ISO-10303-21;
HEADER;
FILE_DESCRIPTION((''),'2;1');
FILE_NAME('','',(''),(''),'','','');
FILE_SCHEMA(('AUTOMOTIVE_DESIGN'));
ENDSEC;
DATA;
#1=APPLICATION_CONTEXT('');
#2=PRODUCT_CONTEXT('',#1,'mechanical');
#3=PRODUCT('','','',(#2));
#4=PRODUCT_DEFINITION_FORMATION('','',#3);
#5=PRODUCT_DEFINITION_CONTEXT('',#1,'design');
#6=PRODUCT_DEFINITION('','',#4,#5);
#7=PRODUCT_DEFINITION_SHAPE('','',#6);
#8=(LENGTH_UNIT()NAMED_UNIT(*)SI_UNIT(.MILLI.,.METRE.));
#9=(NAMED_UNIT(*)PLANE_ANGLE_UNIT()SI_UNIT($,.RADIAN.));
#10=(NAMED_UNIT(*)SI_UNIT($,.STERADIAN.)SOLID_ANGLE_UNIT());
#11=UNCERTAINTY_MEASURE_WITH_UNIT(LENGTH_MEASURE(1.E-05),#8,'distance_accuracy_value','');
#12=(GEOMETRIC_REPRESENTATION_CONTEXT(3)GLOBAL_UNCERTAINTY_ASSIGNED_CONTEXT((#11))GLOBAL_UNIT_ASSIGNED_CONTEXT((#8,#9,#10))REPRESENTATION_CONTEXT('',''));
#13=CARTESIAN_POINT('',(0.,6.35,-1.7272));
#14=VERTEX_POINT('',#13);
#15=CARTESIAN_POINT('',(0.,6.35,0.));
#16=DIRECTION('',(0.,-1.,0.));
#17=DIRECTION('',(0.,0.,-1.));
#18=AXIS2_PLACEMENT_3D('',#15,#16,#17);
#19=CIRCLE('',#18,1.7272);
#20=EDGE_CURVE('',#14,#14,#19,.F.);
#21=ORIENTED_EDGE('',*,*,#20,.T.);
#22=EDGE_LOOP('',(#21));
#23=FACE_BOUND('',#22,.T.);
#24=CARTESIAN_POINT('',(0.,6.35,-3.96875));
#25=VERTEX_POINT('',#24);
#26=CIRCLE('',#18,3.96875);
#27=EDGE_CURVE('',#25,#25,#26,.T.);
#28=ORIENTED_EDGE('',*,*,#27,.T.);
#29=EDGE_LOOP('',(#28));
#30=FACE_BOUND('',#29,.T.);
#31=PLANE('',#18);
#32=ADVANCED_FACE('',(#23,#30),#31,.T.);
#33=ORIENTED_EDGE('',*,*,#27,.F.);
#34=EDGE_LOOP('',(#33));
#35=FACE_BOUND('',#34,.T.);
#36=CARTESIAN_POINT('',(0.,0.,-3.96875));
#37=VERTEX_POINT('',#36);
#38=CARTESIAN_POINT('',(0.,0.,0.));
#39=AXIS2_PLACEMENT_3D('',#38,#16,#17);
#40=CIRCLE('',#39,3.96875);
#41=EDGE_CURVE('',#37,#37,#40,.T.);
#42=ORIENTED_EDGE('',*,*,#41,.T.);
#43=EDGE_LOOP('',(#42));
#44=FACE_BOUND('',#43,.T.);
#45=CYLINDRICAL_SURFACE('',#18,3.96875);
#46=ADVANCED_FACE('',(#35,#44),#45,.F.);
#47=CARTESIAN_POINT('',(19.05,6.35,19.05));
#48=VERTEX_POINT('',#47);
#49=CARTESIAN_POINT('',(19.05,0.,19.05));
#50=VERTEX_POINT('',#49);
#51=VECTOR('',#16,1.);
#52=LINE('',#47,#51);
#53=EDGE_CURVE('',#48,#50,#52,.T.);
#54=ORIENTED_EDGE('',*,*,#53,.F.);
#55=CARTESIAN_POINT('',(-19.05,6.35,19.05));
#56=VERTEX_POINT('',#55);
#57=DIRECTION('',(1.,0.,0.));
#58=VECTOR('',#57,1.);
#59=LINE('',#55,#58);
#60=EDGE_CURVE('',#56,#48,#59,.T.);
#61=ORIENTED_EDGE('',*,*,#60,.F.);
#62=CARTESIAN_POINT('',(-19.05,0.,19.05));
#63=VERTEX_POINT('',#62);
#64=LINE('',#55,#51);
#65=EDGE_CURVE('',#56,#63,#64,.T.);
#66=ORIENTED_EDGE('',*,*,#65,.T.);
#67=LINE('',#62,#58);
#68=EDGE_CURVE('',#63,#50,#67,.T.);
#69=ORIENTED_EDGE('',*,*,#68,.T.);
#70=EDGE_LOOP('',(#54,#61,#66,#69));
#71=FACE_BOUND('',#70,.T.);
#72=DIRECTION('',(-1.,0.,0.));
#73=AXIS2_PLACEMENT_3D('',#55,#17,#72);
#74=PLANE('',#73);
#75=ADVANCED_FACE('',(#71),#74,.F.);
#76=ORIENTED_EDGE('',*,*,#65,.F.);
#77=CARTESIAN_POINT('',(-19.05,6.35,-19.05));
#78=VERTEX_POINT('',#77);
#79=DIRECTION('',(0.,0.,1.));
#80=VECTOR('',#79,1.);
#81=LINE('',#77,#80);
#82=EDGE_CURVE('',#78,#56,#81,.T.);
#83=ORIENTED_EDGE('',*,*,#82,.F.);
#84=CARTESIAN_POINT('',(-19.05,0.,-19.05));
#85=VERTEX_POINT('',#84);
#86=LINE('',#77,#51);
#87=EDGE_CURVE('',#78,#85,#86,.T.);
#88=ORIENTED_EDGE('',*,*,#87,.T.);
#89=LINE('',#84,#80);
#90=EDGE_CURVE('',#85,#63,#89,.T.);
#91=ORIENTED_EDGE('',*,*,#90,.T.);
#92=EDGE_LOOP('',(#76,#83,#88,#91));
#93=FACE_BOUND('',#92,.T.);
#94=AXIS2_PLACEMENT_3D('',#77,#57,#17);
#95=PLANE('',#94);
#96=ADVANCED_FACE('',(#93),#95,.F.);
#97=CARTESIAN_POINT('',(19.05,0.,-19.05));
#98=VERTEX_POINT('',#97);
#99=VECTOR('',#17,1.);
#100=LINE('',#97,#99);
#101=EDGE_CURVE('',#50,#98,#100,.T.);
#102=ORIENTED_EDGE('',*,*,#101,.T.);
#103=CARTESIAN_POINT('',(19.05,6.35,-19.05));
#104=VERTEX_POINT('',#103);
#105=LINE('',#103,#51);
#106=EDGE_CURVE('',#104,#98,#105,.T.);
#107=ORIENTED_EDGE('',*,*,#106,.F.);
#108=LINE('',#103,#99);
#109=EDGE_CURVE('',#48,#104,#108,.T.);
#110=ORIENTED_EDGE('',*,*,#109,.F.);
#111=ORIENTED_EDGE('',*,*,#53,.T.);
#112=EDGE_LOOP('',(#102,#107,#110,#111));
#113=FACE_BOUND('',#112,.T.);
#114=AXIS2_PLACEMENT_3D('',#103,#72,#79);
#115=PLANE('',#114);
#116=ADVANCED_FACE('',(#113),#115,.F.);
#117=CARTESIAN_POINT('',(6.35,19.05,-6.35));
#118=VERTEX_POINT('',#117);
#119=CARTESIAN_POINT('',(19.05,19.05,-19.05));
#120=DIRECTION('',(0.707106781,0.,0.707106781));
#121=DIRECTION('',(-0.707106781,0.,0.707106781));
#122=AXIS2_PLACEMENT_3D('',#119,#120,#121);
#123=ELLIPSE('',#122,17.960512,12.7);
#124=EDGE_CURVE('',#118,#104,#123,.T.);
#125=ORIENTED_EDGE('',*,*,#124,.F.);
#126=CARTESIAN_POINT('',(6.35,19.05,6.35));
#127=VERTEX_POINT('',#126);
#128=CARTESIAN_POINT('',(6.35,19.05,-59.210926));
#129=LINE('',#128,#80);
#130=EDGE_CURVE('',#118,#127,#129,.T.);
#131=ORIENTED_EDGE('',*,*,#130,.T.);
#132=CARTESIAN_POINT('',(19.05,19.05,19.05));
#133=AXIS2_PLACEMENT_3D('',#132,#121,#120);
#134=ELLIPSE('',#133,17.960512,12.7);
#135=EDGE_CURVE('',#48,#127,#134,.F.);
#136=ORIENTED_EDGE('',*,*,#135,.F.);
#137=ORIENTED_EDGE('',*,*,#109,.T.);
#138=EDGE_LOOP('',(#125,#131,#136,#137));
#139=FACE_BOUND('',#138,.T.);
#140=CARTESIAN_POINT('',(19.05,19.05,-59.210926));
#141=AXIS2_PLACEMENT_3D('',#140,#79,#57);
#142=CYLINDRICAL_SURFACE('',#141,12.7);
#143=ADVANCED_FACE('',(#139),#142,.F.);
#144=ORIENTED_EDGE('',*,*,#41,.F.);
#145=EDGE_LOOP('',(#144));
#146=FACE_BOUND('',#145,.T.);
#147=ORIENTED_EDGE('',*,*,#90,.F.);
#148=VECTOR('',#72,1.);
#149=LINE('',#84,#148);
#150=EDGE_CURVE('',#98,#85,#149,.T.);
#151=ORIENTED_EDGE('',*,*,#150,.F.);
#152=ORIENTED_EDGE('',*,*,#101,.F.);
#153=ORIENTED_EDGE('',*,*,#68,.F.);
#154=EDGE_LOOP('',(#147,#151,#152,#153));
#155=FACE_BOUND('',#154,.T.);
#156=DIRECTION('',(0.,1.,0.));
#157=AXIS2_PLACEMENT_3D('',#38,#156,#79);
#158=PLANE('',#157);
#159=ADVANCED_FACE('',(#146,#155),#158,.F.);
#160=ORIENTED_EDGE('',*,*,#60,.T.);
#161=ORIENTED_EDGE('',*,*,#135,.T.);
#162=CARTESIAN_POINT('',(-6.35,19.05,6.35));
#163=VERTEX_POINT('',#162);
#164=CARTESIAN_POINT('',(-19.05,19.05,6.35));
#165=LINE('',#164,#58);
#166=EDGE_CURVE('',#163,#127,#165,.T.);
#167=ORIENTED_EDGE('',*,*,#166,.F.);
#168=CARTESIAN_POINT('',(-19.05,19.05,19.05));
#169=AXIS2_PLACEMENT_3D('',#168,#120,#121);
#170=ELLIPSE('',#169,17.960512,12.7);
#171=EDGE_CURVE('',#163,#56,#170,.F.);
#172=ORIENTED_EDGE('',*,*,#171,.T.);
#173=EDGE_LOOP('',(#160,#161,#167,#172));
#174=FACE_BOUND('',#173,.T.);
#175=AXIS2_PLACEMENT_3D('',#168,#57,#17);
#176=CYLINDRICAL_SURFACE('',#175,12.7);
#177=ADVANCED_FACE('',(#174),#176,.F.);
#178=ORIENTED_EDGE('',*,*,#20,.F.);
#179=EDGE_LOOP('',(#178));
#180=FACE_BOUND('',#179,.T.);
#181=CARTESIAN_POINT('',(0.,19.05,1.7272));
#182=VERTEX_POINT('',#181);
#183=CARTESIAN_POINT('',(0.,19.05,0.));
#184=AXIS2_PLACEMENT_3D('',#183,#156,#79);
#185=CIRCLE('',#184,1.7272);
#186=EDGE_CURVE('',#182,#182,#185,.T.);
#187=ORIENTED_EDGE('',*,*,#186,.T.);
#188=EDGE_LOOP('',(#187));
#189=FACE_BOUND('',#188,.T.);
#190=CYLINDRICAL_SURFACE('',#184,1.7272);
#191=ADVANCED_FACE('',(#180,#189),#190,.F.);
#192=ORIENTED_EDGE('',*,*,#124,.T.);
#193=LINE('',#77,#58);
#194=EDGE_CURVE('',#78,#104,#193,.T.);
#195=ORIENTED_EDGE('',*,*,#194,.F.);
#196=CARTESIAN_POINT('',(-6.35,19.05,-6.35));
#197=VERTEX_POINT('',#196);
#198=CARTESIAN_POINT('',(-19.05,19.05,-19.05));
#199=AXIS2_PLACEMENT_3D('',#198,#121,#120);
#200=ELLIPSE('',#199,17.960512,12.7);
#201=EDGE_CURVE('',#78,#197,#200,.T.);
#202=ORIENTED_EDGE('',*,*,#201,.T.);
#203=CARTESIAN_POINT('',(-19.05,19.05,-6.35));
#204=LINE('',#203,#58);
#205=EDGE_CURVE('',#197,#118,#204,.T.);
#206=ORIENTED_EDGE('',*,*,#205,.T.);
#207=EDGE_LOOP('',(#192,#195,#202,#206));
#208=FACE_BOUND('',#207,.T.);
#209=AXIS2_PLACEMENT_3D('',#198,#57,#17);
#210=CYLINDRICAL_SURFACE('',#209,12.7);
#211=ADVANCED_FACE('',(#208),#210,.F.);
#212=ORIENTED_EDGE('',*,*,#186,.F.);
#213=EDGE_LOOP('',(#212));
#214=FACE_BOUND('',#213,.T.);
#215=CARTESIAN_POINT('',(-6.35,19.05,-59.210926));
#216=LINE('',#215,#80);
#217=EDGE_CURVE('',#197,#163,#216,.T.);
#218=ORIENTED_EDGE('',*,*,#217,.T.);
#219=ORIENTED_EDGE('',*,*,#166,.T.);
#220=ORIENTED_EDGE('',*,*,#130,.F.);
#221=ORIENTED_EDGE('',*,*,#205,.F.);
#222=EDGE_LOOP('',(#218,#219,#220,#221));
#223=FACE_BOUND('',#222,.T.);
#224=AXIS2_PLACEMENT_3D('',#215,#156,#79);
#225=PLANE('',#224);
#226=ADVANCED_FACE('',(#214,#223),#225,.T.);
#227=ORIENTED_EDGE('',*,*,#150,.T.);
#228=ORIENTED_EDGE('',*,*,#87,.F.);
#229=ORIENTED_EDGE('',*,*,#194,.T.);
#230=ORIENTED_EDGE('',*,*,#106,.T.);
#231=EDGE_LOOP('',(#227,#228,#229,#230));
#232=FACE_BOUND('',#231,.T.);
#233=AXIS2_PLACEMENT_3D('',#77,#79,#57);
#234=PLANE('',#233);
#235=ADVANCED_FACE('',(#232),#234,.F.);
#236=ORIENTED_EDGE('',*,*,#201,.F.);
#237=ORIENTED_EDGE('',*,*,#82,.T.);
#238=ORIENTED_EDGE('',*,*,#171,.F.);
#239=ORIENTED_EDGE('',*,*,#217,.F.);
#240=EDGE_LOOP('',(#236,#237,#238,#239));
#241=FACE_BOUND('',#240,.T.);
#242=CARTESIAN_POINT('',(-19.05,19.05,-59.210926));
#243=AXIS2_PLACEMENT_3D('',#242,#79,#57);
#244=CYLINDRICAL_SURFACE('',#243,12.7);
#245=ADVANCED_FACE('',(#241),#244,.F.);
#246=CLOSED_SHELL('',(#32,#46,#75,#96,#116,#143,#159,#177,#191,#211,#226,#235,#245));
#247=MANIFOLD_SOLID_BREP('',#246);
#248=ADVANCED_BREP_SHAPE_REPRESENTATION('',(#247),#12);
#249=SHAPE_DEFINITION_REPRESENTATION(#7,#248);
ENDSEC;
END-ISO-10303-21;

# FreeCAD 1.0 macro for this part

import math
import FreeCAD as App
import Part
import Sketcher
from FreeCAD import Vector
Q = App.Units.Quantity


def add_polygon(sketch, points):
    """Adds a closed chain of lines whose ends are joined by coincident constraints."""
    first, n = sketch.GeometryCount, len(points)
    for a, b in zip(points, points[1:] + points[:1]):
        sketch.addGeometry(Part.LineSegment(App.Vector(*a, 0), App.Vector(*b, 0)), False)
    for i in range(n):
        sketch.addConstraint(Sketcher.Constraint("Coincident", first + i, 2, first + (i + 1) % n, 1))

doc = App.newDocument("Part")
body = doc.addObject("PartDesign::Body", "Body")

# Sketch on XZ plane
sketch1 = doc.addObject("Sketcher::SketchObject", "Sketch")
body.addObject(sketch1)
sketch1.AttachmentSupport = (doc.XZ_Plane, [""])
sketch1.MapMode = "FlatFace"
add_polygon(sketch1, [(-19, -19), (-19, 19), (19, 19), (19, -19)])  # lines 0-3
sketch1.addConstraint([
    Sketcher.Constraint("Vertical", 0),
    Sketcher.Constraint("Horizontal", 1),
    Sketcher.Constraint("Vertical", 2),
    Sketcher.Constraint("Horizontal", 3),
    Sketcher.Constraint("Symmetric", 0, 2, 2, 2, -1, 1),
    Sketcher.Constraint("Equal", 3, 0),
    Sketcher.Constraint("DistanceX", 1, 1, 1, 2, Q("1.5 in")),
])
pad1 = doc.addObject("PartDesign::Pad", "Pad")
body.addObject(pad1)
pad1.Profile = sketch1
pad1.Length = Q("0.25 in")
pad1.Reversed = True

# Sketch on XY plane
sketch2 = doc.addObject("Sketcher::SketchObject", "Sketch001")
body.addObject(sketch2)
sketch2.AttachmentSupport = (doc.XY_Plane, [""])
sketch2.MapMode = "FlatFace"
sketch2.AttachmentOffset = App.Placement(Vector(0, 0, 0.75 * 25.4), App.Rotation())
sketch2.addGeometry([
    Part.LineSegment(Vector(-19, 6, 0), Vector(19, 6, 0)),
    Part.ArcOfCircle(Part.Circle(Vector(19, 19, 0), Vector(0, 0, 1), 13), math.radians(180), math.radians(270)),
    Part.LineSegment(Vector(6, 19, 0), Vector(-6, 19, 0)),
    Part.ArcOfCircle(Part.Circle(Vector(-19, 19, 0), Vector(0, 0, 1), 13), math.radians(-90), math.radians(0)),
], False)
sketch2.addConstraint([
    Sketcher.Constraint("Tangent", 0, 2, 1, 2),
    Sketcher.Constraint("Coincident", 1, 1, 2, 1),
    Sketcher.Constraint("Coincident", 2, 2, 3, 2),
    Sketcher.Constraint("Tangent", 3, 1, 0, 1),
    Sketcher.Constraint("Horizontal", 0),
    Sketcher.Constraint("Horizontal", 2),
    Sketcher.Constraint("Equal", 1, 3),
    Sketcher.Constraint("Horizontal", 3, 3, 1, 1),
    Sketcher.Constraint("Radius", 1, Q("0.5 in")),
    Sketcher.Constraint("DistanceX", 0, 1, 0, 2, Q("1.5 in")),
    Sketcher.Constraint("DistanceX", -1, 1, 1, 3, Q("0.75 in")),
    Sketcher.Constraint("DistanceY", -1, 1, 1, 3, Q("0.75 in")),
])
pad2 = doc.addObject("PartDesign::Pad", "Pad001")
body.addObject(pad2)
pad2.Profile = sketch2
pad2.Length = Q("1.5 in")
pad2.Reversed = True

# Sketch on YZ plane
sketch3 = doc.addObject("Sketcher::SketchObject", "Sketch002")
body.addObject(sketch3)
sketch3.AttachmentSupport = (doc.YZ_Plane, [""])
sketch3.MapMode = "FlatFace"
sketch3.AttachmentOffset = App.Placement(Vector(0, 0, 0.75 * 25.4), App.Rotation())
sketch3.addGeometry([
    Part.LineSegment(Vector(19, 19, 0), Vector(6, 19, 0)),  # 0
    Part.ArcOfCircle(Part.Circle(Vector(19, 19, 0), Vector(0, 0, 1), 13), math.radians(-180), math.radians(-90)),  # 1
    Part.LineSegment(Vector(19, 6, 0), Vector(19, 19, 0)),  # 2
    Part.LineSegment(Vector(6, -19, 0), Vector(19, -19, 0)),  # 3
    Part.LineSegment(Vector(19, -19, 0), Vector(19, -6, 0)),  # 4
    Part.ArcOfCircle(Part.Circle(Vector(19, -19, 0), Vector(0, 0, 1), 13), math.radians(90), math.radians(180)),  # 5
], False)
sketch3.addConstraint([
    Sketcher.Constraint("Coincident", 0, 2, 1, 1),
    Sketcher.Constraint("Coincident", 1, 2, 2, 1),
    Sketcher.Constraint("Coincident", 2, 2, 0, 1),
    Sketcher.Constraint("Coincident", 3, 2, 4, 1),
    Sketcher.Constraint("Coincident", 4, 2, 5, 1),
    Sketcher.Constraint("Coincident", 5, 2, 3, 1),
    Sketcher.Constraint("Horizontal", 0),
    Sketcher.Constraint("Vertical", 2),
    Sketcher.Constraint("Horizontal", 3),
    Sketcher.Constraint("Vertical", 4),
    Sketcher.Constraint("Coincident", 2, 2, 1, 3),
    Sketcher.Constraint("Coincident", 3, 2, 5, 3),
    Sketcher.Constraint("Equal", 1, 5),
    Sketcher.Constraint("Symmetric", 1, 3, 5, 3, -1),
    Sketcher.Constraint("Radius", 1, Q("0.5 in")),
    Sketcher.Constraint("DistanceY", 5, 3, 1, 2, Q("1 in")),
    Sketcher.Constraint("DistanceX", -1, 1, 1, 3, Q("0.75 in")),
])
pocket1 = doc.addObject("PartDesign::Pocket", "Pocket")
body.addObject(pocket1)
pocket1.Profile = sketch3
pocket1.Type = "ThroughAll"

# Sketch on XZ plane
sketch4 = doc.addObject("Sketcher::SketchObject", "Sketch003")
body.addObject(sketch4)
sketch4.AttachmentSupport = (doc.XZ_Plane, [""])
sketch4.MapMode = "FlatFace"
sketch4.AttachmentOffset = App.Placement(Vector(0, 0, -0.75 * 25.4), App.Rotation())
sketch4.addGeometry(Part.Circle(Vector(0, 0, 0), Vector(0, 0, 1), 1.7), False)
sketch4.addConstraint([
    Sketcher.Constraint("Coincident", 0, 3, -1, 1),
    Sketcher.Constraint("Diameter", 0, Q("0.136 in")),
])
doc.recompute()
hole = doc.addObject("PartDesign::Hole", "Hole")
body.addObject(hole)
hole.Profile = sketch4
hole.ThreadType = "None"
hole.Diameter = Q("0.136 in")
hole.DepthType = "ThroughAll"
hole.Reversed = True

# Sketch on XZ plane
sketch5 = doc.addObject("Sketcher::SketchObject", "Sketch004")
body.addObject(sketch5)
sketch5.AttachmentSupport = (doc.XZ_Plane, [""])
sketch5.MapMode = "FlatFace"
sketch5.addGeometry(Part.Circle(Vector(0, 0, 0), Vector(0, 0, 1), 4), False)
sketch5.addConstraint([
    Sketcher.Constraint("Coincident", 0, 3, -1, 1),
    Sketcher.Constraint("Diameter", 0, Q("0.3125 in")),
])
pocket2 = doc.addObject("PartDesign::Pocket", "Pocket001")
body.addObject(pocket2)
pocket2.Profile = sketch5
pocket2.Length = Q("0.25 in")

doc.recompute()
